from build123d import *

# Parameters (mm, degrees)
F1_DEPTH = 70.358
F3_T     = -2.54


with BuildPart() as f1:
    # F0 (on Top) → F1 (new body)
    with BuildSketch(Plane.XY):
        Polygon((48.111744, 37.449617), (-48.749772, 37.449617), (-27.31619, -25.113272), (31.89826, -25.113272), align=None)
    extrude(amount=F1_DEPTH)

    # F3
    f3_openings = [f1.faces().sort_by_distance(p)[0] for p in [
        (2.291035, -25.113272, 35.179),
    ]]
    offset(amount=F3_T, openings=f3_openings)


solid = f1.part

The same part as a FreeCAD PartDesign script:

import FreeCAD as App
import Part
import Sketcher

V = App.Vector
Q = App.Units.Quantity


def faces_at(feature, points):
    """Names of the faces that lie closest to the given points."""
    faces = feature.Shape.Faces
    near = lambda p: min(range(len(faces)), key=lambda i: faces[i].distToShape(Part.Vertex(*p))[0])
    return sorted({f"Face{near(p) + 1}" for p in points})

doc = App.newDocument("Part")
body = doc.addObject("PartDesign::Body", "Body")

# Sketch on XY plane
sketch1 = body.newObject("Sketcher::SketchObject", "Sketch")
sketch1.AttachmentSupport = (doc.getObject("XY_Plane"), [""])
sketch1.MapMode = "FlatFace"
sketch1.addGeometry([
    Part.LineSegment(V(48.111744, 37.449617, 0), V(-48.749772, 37.449617, 0)),
    Part.LineSegment(V(-48.749772, 37.449617, 0), V(-27.31619, -25.113272, 0)),
    Part.LineSegment(V(-27.31619, -25.113272, 0), V(31.89826, -25.113272, 0)),
    Part.LineSegment(V(31.89826, -25.113272, 0), V(48.111744, 37.449617, 0)),
], False)
sketch1.addConstraint([
    Sketcher.Constraint("Coincident", 0, 2, 1, 1),
    Sketcher.Constraint("Coincident", 1, 2, 2, 1),
    Sketcher.Constraint("Coincident", 2, 2, 3, 1),
    Sketcher.Constraint("Coincident", 3, 2, 0, 1),
    Sketcher.Constraint("Horizontal", 0),
    Sketcher.Constraint("Horizontal", 2),
    Sketcher.Constraint("DistanceX", 2, 1, 2, 2, Q("59.21445 mm")),
    Sketcher.Constraint("DistanceX", 0, 2, 0, 1, Q("96.861516 mm")),
    Sketcher.Constraint("DistanceX", 1, 2, -1, 1, Q("27.31619 mm")),
    Sketcher.Constraint("DistanceY", 1, 2, -1, 1, Q("25.113272 mm")),
    Sketcher.Constraint("DistanceY", 1, 2, 0, 2, Q("62.562889 mm")),
    Sketcher.Constraint("DistanceX", 0, 2, 2, 2, Q("80.648032 mm")),
])
pad1 = body.newObject("PartDesign::Pad", "Pad")
pad1.Profile = sketch1
pad1.Length = Q("2.77 in")
doc.recompute()

thickness = body.newObject("PartDesign::Thickness", "Thickness")
thickness.Base = (pad1, faces_at(pad1, [(2.291, -25.113, 35.179)]))
thickness.Value = Q("0.1 in")
thickness.Reversed = True
thickness.Join = "Arc"

doc.recompute()
